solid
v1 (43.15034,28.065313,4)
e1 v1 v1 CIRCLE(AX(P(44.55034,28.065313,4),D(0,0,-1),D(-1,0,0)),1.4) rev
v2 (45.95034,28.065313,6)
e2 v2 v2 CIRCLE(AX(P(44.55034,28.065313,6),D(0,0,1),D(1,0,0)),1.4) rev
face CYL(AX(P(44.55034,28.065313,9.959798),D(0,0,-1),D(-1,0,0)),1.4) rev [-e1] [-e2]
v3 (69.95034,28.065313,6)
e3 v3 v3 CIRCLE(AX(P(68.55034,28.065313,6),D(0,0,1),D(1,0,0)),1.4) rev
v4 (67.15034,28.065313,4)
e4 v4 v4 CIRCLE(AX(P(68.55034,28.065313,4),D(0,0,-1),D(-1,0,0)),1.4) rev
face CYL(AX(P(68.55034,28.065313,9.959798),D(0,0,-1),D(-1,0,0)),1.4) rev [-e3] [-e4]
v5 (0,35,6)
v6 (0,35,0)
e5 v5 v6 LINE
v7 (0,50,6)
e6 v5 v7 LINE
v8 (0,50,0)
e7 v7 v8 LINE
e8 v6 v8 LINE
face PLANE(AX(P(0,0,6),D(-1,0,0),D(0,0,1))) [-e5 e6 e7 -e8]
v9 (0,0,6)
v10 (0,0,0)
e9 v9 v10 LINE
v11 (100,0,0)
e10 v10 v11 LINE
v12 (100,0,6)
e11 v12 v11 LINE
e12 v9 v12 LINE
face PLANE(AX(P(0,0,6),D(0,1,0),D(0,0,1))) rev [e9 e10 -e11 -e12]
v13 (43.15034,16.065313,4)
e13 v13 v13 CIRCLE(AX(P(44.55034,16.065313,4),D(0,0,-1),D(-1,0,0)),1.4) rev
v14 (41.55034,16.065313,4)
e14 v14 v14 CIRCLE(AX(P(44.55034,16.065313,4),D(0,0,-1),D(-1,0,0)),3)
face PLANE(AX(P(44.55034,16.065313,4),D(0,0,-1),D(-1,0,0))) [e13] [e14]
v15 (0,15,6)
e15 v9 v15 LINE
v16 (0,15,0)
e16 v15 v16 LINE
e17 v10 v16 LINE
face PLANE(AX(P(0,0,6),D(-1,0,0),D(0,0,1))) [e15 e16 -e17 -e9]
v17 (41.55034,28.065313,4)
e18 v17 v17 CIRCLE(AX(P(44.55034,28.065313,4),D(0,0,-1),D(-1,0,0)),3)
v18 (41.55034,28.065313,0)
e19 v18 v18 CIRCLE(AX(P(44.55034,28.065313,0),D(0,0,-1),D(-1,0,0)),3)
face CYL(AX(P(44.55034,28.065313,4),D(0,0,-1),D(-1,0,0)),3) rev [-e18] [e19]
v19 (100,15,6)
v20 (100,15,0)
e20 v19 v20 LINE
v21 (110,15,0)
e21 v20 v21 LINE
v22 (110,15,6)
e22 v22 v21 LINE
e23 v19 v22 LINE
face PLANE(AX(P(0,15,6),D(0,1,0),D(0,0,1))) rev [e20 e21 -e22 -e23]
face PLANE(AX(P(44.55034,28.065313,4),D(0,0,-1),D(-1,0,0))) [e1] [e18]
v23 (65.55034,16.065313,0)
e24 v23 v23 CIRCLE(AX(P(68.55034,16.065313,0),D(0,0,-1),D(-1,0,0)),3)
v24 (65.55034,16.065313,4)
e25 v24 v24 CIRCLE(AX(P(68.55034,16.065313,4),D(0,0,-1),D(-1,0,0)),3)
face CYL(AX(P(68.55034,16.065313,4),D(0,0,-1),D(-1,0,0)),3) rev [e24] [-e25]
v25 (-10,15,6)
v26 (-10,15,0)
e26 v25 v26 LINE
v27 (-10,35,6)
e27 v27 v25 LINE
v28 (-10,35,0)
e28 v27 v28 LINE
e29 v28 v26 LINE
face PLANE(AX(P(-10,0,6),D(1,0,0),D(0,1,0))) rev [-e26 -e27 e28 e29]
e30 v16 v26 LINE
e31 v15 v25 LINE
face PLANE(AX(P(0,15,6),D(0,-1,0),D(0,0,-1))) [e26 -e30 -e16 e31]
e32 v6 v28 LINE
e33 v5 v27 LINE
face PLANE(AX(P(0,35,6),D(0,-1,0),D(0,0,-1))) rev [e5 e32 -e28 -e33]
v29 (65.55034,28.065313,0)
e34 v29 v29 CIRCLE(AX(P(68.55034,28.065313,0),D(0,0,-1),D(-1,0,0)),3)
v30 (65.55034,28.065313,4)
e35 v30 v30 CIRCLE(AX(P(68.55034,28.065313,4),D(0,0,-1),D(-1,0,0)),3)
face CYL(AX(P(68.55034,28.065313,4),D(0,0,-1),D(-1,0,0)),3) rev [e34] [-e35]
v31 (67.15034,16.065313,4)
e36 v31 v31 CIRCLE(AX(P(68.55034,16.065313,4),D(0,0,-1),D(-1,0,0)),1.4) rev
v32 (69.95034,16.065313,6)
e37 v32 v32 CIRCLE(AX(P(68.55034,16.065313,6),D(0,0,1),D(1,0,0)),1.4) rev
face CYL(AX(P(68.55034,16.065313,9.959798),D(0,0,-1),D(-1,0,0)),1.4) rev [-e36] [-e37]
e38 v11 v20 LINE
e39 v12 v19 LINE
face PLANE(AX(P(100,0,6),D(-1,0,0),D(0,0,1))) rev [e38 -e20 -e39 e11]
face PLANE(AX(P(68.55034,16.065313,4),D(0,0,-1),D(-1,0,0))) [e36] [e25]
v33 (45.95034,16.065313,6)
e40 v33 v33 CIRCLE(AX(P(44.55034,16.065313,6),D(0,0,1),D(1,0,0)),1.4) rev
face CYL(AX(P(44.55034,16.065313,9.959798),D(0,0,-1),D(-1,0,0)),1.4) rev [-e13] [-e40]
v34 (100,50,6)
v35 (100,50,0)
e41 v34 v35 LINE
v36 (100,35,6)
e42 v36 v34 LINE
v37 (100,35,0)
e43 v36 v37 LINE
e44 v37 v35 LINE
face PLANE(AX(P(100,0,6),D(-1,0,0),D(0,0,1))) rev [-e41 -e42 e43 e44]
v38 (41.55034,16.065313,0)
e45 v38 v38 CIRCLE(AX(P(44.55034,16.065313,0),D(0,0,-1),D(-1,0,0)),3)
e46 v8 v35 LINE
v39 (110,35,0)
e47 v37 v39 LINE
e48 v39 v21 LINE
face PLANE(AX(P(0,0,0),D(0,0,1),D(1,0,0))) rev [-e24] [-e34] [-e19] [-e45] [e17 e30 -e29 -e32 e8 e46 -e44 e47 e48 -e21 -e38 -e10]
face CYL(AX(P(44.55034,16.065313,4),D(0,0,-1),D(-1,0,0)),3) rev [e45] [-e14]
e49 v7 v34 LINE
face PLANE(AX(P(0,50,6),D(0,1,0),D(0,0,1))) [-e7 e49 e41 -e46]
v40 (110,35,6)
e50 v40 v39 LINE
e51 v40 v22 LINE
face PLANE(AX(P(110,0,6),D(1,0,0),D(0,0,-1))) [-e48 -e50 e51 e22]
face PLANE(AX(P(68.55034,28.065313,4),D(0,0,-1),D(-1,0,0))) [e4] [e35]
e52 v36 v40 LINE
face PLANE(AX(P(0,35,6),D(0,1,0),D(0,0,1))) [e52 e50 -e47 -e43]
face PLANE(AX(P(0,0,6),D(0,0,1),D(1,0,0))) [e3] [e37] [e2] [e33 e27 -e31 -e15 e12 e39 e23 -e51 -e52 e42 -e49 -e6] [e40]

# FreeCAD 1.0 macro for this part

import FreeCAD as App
import Part
import Sketcher
from FreeCAD import Vector
Q = App.Units.Quantity

doc = App.newDocument("Part")
body = doc.addObject("PartDesign::Body", "Body")

# Sketch on XY plane
sketch1 = body.newObject("Sketcher::SketchObject", "Sketch")
sketch1.AttachmentSupport = (doc.getObject("XY_Plane"), [""])
sketch1.MapMode = "FlatFace"
sketch1.addGeometry(Part.LineSegment(Vector(-10, 35, 0), Vector(-10, 15, 0)), False)
sketch1.addGeometry(Part.LineSegment(Vector(-10, 15, 0), Vector(0, 15, 0)), False)
sketch1.addGeometry(Part.LineSegment(Vector(0, 15, 0), Vector(0, 0, 0)), False)
sketch1.addGeometry(Part.LineSegment(Vector(0, 0, 0), Vector(100, 0, 0)), False)
sketch1.addGeometry(Part.LineSegment(Vector(100, 0, 0), Vector(100, 15, 0)), False)
sketch1.addGeometry(Part.LineSegment(Vector(100, 15, 0), Vector(110, 15, 0)), False)
sketch1.addGeometry(Part.LineSegment(Vector(110, 15, 0), Vector(110, 35, 0)), False)
sketch1.addGeometry(Part.LineSegment(Vector(110, 35, 0), Vector(100, 35, 0)), False)
sketch1.addGeometry(Part.LineSegment(Vector(100, 35, 0), Vector(100, 50, 0)), False)
sketch1.addGeometry(Part.LineSegment(Vector(100, 50, 0), Vector(0, 50, 0)), False)
sketch1.addGeometry(Part.LineSegment(Vector(0, 50, 0), Vector(0, 35, 0)), False)
sketch1.addGeometry(Part.LineSegment(Vector(0, 35, 0), Vector(-10, 35, 0)), False)
sketch1.addConstraint(Sketcher.Constraint("Coincident", 0, 2, 1, 1))
sketch1.addConstraint(Sketcher.Constraint("Coincident", 1, 2, 2, 1))
sketch1.addConstraint(Sketcher.Constraint("Coincident", 2, 2, 3, 1))
sketch1.addConstraint(Sketcher.Constraint("Coincident", 3, 2, 4, 1))
sketch1.addConstraint(Sketcher.Constraint("Coincident", 4, 2, 5, 1))
sketch1.addConstraint(Sketcher.Constraint("Coincident", 5, 2, 6, 1))
sketch1.addConstraint(Sketcher.Constraint("Coincident", 6, 2, 7, 1))
sketch1.addConstraint(Sketcher.Constraint("Coincident", 7, 2, 8, 1))
sketch1.addConstraint(Sketcher.Constraint("Coincident", 8, 2, 9, 1))
sketch1.addConstraint(Sketcher.Constraint("Coincident", 9, 2, 10, 1))
sketch1.addConstraint(Sketcher.Constraint("Coincident", 10, 2, 11, 1))
sketch1.addConstraint(Sketcher.Constraint("Coincident", 11, 2, 0, 1))
sketch1.addConstraint(Sketcher.Constraint("Vertical", 0))
sketch1.addConstraint(Sketcher.Constraint("Horizontal", 1))
sketch1.addConstraint(Sketcher.Constraint("Vertical", 2))
sketch1.addConstraint(Sketcher.Constraint("Horizontal", 3))
sketch1.addConstraint(Sketcher.Constraint("Vertical", 4))
sketch1.addConstraint(Sketcher.Constraint("Horizontal", 5))
sketch1.addConstraint(Sketcher.Constraint("Vertical", 6))
sketch1.addConstraint(Sketcher.Constraint("Horizontal", 7))
sketch1.addConstraint(Sketcher.Constraint("Vertical", 8))
sketch1.addConstraint(Sketcher.Constraint("Horizontal", 9))
sketch1.addConstraint(Sketcher.Constraint("Vertical", 10))
sketch1.addConstraint(Sketcher.Constraint("Horizontal", 11))
sketch1.addConstraint(Sketcher.Constraint("Coincident", 2, 2, -1, 1))
sketch1.addConstraint(Sketcher.Constraint("PointOnObject", 9, 2, -2))
sketch1.addConstraint(Sketcher.Constraint("Horizontal", 1, 2, 4, 2))
sketch1.addConstraint(Sketcher.Constraint("Horizontal", 7, 2, 10, 2))
sketch1.addConstraint(Sketcher.Constraint("Vertical", 4, 2, 7, 2))
sketch1.addConstraint(Sketcher.Constraint("Equal", 1, 5))
sketch1.addConstraint(Sketcher.Constraint("Equal", 4, 8))
sketch1.addConstraint(Sketcher.Constraint("DistanceX", 1, 1, 1, 2, Q("10 mm")))
sketch1.addConstraint(Sketcher.Constraint("DistanceX", 3, 1, 3, 2, Q("100 mm")))
sketch1.addConstraint(Sketcher.Constraint("DistanceY", 0, 2, 0, 1, Q("20 mm")))
sketch1.addConstraint(Sketcher.Constraint("DistanceY", 2, 2, 2, 1, Q("15 mm")))
pad1 = body.newObject("PartDesign::Pad", "Pad")
pad1.Profile = sketch1
pad1.Length = 6

# Sketch on XY plane
sketch2 = body.newObject("Sketcher::SketchObject", "Sketch001")
sketch2.AttachmentSupport = (doc.getObject("XY_Plane"), [""])
sketch2.MapMode = "FlatFace"
sketch2.addGeometry(Part.Circle(Vector(44.6, 16.1, 0), Vector(0, 0, 1), 1.4), False)
sketch2.addGeometry(Part.Circle(Vector(44.6, 28.1, 0), Vector(0, 0, 1), 1.4), False)
sketch2.addGeometry(Part.Circle(Vector(68.6, 28.1, 0), Vector(0, 0, 1), 1.4), False)
sketch2.addGeometry(Part.Circle(Vector(68.6, 16.1, 0), Vector(0, 0, 1), 1.4), False)
sketch2.addConstraint(Sketcher.Constraint("Equal", 0, 1))
sketch2.addConstraint(Sketcher.Constraint("Equal", 1, 2))
sketch2.addConstraint(Sketcher.Constraint("Equal", 2, 3))
sketch2.addConstraint(Sketcher.Constraint("Horizontal", 1, 3, 2, 3))
sketch2.addConstraint(Sketcher.Constraint("Horizontal", 0, 3, 3, 3))
sketch2.addConstraint(Sketcher.Constraint("Vertical", 0, 3, 1, 3))
sketch2.addConstraint(Sketcher.Constraint("Vertical", 2, 3, 3, 3))
sketch2.addConstraint(Sketcher.Constraint("Diameter", 0, Q("2.8 mm")))
sketch2.addConstraint(Sketcher.Constraint("DistanceY", 0, 3, 1, 3, Q("12 mm")))
sketch2.addConstraint(Sketcher.Constraint("DistanceX", 1, 3, 2, 3, Q("24 mm")))
sketch2.addConstraint(Sketcher.Constraint("DistanceX", -1, 1, 0, 3, Q("44.55034 mm")))
sketch2.addConstraint(Sketcher.Constraint("DistanceY", -1, 1, 0, 3, Q("16.065313 mm")))
pocket1 = body.newObject("PartDesign::Pocket", "Pocket")
pocket1.Profile = sketch2
pocket1.Length = 6
pocket1.Reversed = True

# Sketch on XY plane
sketch3 = body.newObject("Sketcher::SketchObject", "Sketch002")
sketch3.AttachmentSupport = (doc.getObject("XY_Plane"), [""])
sketch3.MapMode = "FlatFace"
sketch3.addGeometry(Part.Circle(Vector(68.6, 28.1, 0), Vector(0, 0, 1), 3), False)
sketch3.addGeometry(Part.Circle(Vector(44.6, 28.1, 0), Vector(0, 0, 1), 3), False)
sketch3.addGeometry(Part.Circle(Vector(44.6, 16.1, 0), Vector(0, 0, 1), 3), False)
sketch3.addGeometry(Part.Circle(Vector(68.6, 16.1, 0), Vector(0, 0, 1), 3), False)
sketch3.addConstraint(Sketcher.Constraint("Equal", 0, 1))
sketch3.addConstraint(Sketcher.Constraint("Equal", 1, 2))
sketch3.addConstraint(Sketcher.Constraint("Equal", 2, 3))
sketch3.addConstraint(Sketcher.Constraint("Horizontal", 0, 3, 1, 3))
sketch3.addConstraint(Sketcher.Constraint("Horizontal", 2, 3, 3, 3))
sketch3.addConstraint(Sketcher.Constraint("Vertical", 1, 3, 2, 3))
sketch3.addConstraint(Sketcher.Constraint("Vertical", 0, 3, 3, 3))
sketch3.addConstraint(Sketcher.Constraint("Diameter", 0, Q("6 mm")))
sketch3.addConstraint(Sketcher.Constraint("DistanceX", 1, 3, 0, 3, Q("24 mm")))
sketch3.addConstraint(Sketcher.Constraint("DistanceY", 2, 3, 1, 3, Q("12 mm")))
sketch3.addConstraint(Sketcher.Constraint("DistanceX", -1, 1, 0, 3, Q("68.55034 mm")))
sketch3.addConstraint(Sketcher.Constraint("DistanceY", -1, 1, 0, 3, Q("28.065313 mm")))
pocket2 = body.newObject("PartDesign::Pocket", "Pocket001")
pocket2.Profile = sketch3
pocket2.Length = 4
pocket2.Reversed = True

doc.recompute()
